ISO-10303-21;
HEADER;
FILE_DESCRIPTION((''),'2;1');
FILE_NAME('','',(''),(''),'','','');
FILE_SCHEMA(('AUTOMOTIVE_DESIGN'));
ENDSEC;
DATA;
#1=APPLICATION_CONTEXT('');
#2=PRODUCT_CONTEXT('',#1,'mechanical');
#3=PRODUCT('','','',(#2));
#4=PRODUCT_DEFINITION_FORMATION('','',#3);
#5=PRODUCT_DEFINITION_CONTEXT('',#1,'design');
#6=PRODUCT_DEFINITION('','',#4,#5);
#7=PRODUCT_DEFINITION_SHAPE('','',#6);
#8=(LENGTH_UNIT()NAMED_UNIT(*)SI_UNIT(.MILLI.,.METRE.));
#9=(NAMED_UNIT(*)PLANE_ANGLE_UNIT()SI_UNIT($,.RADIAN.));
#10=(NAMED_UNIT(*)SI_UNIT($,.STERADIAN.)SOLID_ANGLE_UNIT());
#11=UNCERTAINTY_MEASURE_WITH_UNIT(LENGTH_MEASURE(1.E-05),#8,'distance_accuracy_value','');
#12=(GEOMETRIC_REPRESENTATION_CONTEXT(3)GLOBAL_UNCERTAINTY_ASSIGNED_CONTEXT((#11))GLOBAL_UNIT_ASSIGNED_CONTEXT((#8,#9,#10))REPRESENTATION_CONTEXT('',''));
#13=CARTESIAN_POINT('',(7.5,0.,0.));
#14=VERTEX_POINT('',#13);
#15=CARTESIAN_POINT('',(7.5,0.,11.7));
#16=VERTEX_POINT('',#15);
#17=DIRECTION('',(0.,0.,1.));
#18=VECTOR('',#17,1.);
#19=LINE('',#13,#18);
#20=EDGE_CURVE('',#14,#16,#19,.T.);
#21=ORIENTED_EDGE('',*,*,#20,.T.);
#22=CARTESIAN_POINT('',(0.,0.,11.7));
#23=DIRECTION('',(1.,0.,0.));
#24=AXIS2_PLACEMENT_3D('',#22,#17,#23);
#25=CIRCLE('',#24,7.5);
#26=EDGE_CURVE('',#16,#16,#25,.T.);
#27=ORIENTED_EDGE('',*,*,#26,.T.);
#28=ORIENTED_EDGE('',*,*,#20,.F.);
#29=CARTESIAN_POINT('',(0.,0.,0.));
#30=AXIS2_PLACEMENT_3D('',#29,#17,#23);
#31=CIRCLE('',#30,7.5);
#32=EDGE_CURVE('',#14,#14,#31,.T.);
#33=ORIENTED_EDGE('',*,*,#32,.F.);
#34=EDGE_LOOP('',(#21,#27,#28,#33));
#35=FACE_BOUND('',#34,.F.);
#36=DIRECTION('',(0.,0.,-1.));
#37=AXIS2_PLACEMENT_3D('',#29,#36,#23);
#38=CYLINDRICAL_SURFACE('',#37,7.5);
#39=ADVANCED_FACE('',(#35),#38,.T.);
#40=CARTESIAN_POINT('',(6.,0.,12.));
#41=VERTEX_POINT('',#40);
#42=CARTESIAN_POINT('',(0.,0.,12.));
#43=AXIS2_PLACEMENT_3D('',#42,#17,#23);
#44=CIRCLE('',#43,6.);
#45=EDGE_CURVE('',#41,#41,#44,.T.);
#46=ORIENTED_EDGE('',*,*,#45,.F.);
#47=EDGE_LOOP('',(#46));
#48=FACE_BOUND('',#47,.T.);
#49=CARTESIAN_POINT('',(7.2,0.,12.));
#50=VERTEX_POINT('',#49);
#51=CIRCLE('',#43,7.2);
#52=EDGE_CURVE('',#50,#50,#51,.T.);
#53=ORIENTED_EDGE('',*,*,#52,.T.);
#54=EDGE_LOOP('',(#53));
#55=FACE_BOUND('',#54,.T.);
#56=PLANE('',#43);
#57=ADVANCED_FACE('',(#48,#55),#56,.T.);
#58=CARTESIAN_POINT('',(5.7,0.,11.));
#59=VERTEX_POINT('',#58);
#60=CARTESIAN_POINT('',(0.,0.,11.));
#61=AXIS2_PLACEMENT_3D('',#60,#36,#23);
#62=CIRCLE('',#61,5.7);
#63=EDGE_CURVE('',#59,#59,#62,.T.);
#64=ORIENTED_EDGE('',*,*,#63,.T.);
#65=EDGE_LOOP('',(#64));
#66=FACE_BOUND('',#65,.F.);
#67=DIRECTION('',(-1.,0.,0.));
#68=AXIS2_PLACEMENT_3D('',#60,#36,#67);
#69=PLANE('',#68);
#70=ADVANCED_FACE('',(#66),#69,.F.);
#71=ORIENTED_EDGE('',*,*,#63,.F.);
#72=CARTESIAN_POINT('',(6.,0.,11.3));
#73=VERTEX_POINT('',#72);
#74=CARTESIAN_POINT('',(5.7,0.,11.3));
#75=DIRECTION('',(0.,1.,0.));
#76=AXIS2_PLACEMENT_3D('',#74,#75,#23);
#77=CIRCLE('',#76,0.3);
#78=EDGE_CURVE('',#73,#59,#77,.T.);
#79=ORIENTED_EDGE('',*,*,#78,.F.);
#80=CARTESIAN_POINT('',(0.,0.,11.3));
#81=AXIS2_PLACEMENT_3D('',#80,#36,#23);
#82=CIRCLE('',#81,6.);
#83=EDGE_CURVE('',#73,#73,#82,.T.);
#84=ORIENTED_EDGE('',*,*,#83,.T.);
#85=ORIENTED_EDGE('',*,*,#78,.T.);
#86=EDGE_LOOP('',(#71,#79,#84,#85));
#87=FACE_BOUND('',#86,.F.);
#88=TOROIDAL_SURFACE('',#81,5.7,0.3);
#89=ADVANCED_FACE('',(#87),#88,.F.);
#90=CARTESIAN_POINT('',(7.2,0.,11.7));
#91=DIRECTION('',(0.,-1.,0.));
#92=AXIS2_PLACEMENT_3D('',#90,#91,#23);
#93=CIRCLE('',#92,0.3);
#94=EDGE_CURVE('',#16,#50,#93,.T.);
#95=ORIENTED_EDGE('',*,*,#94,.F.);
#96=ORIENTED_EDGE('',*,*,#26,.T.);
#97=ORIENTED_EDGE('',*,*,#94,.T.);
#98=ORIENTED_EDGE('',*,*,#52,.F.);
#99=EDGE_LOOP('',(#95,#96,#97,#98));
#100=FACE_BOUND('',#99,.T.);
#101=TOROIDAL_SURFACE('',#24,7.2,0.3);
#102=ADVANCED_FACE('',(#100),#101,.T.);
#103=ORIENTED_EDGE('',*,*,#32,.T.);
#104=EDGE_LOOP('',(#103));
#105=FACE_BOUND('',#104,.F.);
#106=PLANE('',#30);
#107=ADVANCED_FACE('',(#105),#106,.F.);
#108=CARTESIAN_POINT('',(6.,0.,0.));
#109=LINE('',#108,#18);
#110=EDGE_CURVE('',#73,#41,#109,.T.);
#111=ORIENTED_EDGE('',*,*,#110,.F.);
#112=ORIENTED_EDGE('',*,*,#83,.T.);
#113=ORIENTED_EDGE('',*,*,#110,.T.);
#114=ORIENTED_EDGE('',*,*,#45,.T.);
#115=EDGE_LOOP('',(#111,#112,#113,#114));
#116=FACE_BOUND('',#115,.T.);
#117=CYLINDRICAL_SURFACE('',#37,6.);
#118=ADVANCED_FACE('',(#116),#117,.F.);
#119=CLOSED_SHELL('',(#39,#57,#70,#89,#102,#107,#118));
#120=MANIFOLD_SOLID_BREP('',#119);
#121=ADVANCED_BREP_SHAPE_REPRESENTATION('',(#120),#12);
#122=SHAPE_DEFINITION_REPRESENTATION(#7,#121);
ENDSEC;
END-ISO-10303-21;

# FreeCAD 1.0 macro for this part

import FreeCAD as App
import Part
import Sketcher
from FreeCAD import Vector


def edges_at(feature, points):
    """Names of the edges that pass closest to the given points."""
    edges = feature.Shape.Edges
    near = lambda p: min(range(len(edges)), key=lambda i: edges[i].distToShape(Part.Vertex(*p))[0])
    return sorted({f"Edge{near(p) + 1}" for p in points})

doc = App.newDocument("Part")
params = doc.addObject("Spreadsheet::Sheet", "Params")
for row, (alias, value) in enumerate([
    ("sketch1_diameter", "15 mm"),
    ("sketch1_diameter2", "12 mm"),
    ("pad1_length", "12 mm"),
    ("sketch2_diameter", "12 mm"),
    ("pad2_length", "11 mm"),
    ("fillet_radius", "0.3 mm"),
], start=1):
    params.set(f"A{row}", alias)
    params.set(f"B{row}", "=" + value)
    params.setAlias(f"B{row}", alias)

body = doc.addObject("PartDesign::Body", "Body")

# Sketch on XY plane
sketch1 = doc.addObject("Sketcher::SketchObject", "Sketch")
body.addObject(sketch1)
sketch1.AttachmentSupport = (doc.XY_Plane, [""])
sketch1.MapMode = "FlatFace"
sketch1.addGeometry([
    Part.Circle(Vector(0, 0, 0), Vector(0, 0, 1), 8),
    Part.Circle(Vector(0, 0, 0), Vector(0, 0, 1), 6),
], False)
sketch1.addConstraint([
    Sketcher.Constraint("Coincident", 0, 3, -1, 1),
    Sketcher.Constraint("Coincident", 1, 3, -1, 1),
    Sketcher.Constraint("Diameter", 0, 15.0),
    Sketcher.Constraint("Diameter", 1, 12.0),
])
sketch1.setExpression("Constraints[2]", "Params.sketch1_diameter")
sketch1.setExpression("Constraints[3]", "Params.sketch1_diameter2")
pad1 = doc.addObject("PartDesign::Pad", "Pad")
body.addObject(pad1)
pad1.Profile = sketch1
pad1.setExpression("Length", "Params.pad1_length")

# Sketch on XY plane
sketch2 = doc.addObject("Sketcher::SketchObject", "Sketch001")
body.addObject(sketch2)
sketch2.AttachmentSupport = (doc.XY_Plane, [""])
sketch2.MapMode = "FlatFace"
sketch2.addGeometry(Part.Circle(Vector(0, 0, 0), Vector(0, 0, 1), 6), False)
sketch2.addConstraint([
    Sketcher.Constraint("Coincident", 0, 3, -1, 1),
    Sketcher.Constraint("Diameter", 0, 12.0),
])
sketch2.setExpression("Constraints[1]", "Params.sketch2_diameter")
pad2 = doc.addObject("PartDesign::Pad", "Pad001")
body.addObject(pad2)
pad2.Profile = sketch2
pad2.setExpression("Length", "Params.pad2_length")
doc.recompute()

fillet = doc.addObject("PartDesign::Fillet", "Fillet")
body.addObject(fillet)
fillet.Base = (pad2, edges_at(pad2, [(-7.5, 0, 12), (-6, 0, 11)]))
fillet.setExpression("Radius", "Params.fillet_radius")

doc.recompute()
